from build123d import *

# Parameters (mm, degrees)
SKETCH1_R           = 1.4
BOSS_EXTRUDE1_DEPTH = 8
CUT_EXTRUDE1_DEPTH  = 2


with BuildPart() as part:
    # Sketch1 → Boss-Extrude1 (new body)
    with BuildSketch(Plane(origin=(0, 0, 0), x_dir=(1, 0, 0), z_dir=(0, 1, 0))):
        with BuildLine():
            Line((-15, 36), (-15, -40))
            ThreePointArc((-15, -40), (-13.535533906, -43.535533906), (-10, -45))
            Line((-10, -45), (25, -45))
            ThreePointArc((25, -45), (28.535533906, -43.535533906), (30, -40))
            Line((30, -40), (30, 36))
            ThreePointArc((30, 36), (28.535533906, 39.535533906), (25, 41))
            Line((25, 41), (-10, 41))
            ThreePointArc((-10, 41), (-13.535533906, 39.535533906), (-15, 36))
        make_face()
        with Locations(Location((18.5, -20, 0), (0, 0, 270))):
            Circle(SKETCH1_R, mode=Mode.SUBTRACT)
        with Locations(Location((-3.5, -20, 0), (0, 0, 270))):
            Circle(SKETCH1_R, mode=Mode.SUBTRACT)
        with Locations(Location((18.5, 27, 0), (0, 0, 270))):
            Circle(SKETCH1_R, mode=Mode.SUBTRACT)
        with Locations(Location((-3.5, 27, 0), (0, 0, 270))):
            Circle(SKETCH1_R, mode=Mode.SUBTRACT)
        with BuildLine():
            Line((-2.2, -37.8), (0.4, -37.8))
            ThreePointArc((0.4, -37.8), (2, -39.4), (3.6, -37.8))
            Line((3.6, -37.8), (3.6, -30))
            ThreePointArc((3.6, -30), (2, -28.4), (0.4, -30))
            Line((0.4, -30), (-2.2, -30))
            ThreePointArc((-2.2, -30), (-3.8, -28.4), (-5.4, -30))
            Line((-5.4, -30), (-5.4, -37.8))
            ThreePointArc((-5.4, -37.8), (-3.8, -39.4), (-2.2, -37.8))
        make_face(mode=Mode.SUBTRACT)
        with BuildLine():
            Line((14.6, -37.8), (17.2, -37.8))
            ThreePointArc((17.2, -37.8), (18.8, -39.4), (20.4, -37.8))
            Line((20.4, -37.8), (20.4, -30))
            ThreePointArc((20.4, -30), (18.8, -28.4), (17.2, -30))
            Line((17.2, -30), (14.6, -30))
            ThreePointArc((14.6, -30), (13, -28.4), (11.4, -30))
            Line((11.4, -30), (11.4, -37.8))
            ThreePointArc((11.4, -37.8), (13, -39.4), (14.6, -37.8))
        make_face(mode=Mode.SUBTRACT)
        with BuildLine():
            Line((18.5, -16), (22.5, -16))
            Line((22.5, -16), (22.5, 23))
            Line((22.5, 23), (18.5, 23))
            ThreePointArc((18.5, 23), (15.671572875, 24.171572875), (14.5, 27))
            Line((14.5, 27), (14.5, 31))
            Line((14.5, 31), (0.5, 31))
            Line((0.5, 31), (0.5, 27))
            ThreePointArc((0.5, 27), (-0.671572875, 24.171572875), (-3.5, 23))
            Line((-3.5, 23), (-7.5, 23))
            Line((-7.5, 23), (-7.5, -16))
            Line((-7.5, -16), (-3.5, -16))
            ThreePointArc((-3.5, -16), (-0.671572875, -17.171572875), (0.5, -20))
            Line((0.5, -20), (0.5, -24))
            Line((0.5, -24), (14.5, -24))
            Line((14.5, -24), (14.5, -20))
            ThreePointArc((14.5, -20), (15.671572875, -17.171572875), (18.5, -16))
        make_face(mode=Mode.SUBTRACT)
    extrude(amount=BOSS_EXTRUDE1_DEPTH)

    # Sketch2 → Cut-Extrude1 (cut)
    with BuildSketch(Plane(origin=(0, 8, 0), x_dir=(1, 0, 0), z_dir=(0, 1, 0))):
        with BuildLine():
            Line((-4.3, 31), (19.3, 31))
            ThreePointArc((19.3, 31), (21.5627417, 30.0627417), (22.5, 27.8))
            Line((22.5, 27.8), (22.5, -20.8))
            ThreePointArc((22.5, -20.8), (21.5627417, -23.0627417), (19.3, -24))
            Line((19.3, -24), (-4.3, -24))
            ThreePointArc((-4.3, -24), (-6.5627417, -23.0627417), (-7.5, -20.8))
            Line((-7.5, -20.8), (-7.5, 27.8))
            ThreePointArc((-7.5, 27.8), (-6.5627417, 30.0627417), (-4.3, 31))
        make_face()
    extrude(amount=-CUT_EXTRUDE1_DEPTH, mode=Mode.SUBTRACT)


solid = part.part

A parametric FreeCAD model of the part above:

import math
import FreeCAD as App
import Part
import Sketcher
from FreeCAD import Vector

doc = App.newDocument("Part")
body = doc.addObject("PartDesign::Body", "Body")

# Sketch on XZ plane
sketch1 = body.newObject("Sketcher::SketchObject", "Sketch")
sketch1.AttachmentSupport = (doc.getObject("XZ_Plane"), [""])
sketch1.MapMode = "FlatFace"
sketch1.addGeometry(Part.LineSegment(Vector(-15, -36, 0), Vector(-15, 40, 0)), False)
sketch1.addGeometry(Part.ArcOfCircle(Part.Circle(Vector(-10, 40, 0), Vector(0, 0, 1), 5), math.radians(90), math.radians(180)), False)
sketch1.addGeometry(Part.LineSegment(Vector(-10, 45, 0), Vector(25, 45, 0)), False)
sketch1.addGeometry(Part.ArcOfCircle(Part.Circle(Vector(25, 40, 0), Vector(0, 0, 1), 5), math.radians(0), math.radians(90)), False)
sketch1.addGeometry(Part.LineSegment(Vector(30, 40, 0), Vector(30, -36, 0)), False)
sketch1.addGeometry(Part.ArcOfCircle(Part.Circle(Vector(25, -36, 0), Vector(0, 0, 1), 5), math.radians(-90), math.radians(0)), False)
sketch1.addGeometry(Part.LineSegment(Vector(25, -41, 0), Vector(-10, -41, 0)), False)
sketch1.addGeometry(Part.ArcOfCircle(Part.Circle(Vector(-10, -36, 0), Vector(0, 0, 1), 5), math.radians(180), math.radians(270)), False)
sketch1.addGeometry(Part.LineSegment(Vector(0.4, 37.8, 0), Vector(-2.2, 37.8, 0)), False)
sketch1.addGeometry(Part.ArcOfCircle(Part.Circle(Vector(-3.8, 37.8, 0), Vector(0, 0, 1), 1.6), math.radians(0), math.radians(180)), False)
sketch1.addGeometry(Part.LineSegment(Vector(-5.4, 37.8, 0), Vector(-5.4, 30, 0)), False)
sketch1.addGeometry(Part.ArcOfCircle(Part.Circle(Vector(-3.8, 30, 0), Vector(0, 0, 1), 1.6), math.radians(180), math.radians(360)), False)
sketch1.addGeometry(Part.LineSegment(Vector(-2.2, 30, 0), Vector(0.4, 30, 0)), False)
sketch1.addGeometry(Part.ArcOfCircle(Part.Circle(Vector(2, 30, 0), Vector(0, 0, 1), 1.6), math.radians(180), math.radians(360)), False)
sketch1.addGeometry(Part.LineSegment(Vector(3.6, 30, 0), Vector(3.6, 37.8, 0)), False)
sketch1.addGeometry(Part.ArcOfCircle(Part.Circle(Vector(2, 37.8, 0), Vector(0, 0, 1), 1.6), math.radians(0), math.radians(180)), False)
sketch1.addGeometry(Part.Circle(Vector(-3.5, 20, 0), Vector(0, 0, 1), 1.4), False)
sketch1.addGeometry(Part.LineSegment(Vector(17.2, 37.8, 0), Vector(14.6, 37.8, 0)), False)
sketch1.addGeometry(Part.ArcOfCircle(Part.Circle(Vector(13, 37.8, 0), Vector(0, 0, 1), 1.6), math.radians(0), math.radians(180)), False)
sketch1.addGeometry(Part.LineSegment(Vector(11.4, 37.8, 0), Vector(11.4, 30, 0)), False)
sketch1.addGeometry(Part.ArcOfCircle(Part.Circle(Vector(13, 30, 0), Vector(0, 0, 1), 1.6), math.radians(180), math.radians(360)), False)
sketch1.addGeometry(Part.LineSegment(Vector(14.6, 30, 0), Vector(17.2, 30, 0)), False)
sketch1.addGeometry(Part.ArcOfCircle(Part.Circle(Vector(18.8, 30, 0), Vector(0, 0, 1), 1.6), math.radians(180), math.radians(360)), False)
sketch1.addGeometry(Part.LineSegment(Vector(20.4, 30, 0), Vector(20.4, 37.8, 0)), False)
sketch1.addGeometry(Part.ArcOfCircle(Part.Circle(Vector(18.8, 37.8, 0), Vector(0, 0, 1), 1.6), math.radians(0), math.radians(180)), False)
sketch1.addGeometry(Part.Circle(Vector(18.5, 20, 0), Vector(0, 0, 1), 1.4), False)
sketch1.addGeometry(Part.Circle(Vector(-3.5, -27, 0), Vector(0, 0, 1), 1.4), False)
sketch1.addGeometry(Part.LineSegment(Vector(22.5, 16, 0), Vector(18.5, 16, 0)), False)
sketch1.addGeometry(Part.ArcOfCircle(Part.Circle(Vector(18.5, 20, 0), Vector(0, 0, 1), 4), math.radians(180), math.radians(270)), False)
sketch1.addGeometry(Part.LineSegment(Vector(14.5, 20, 0), Vector(14.5, 24, 0)), False)
sketch1.addGeometry(Part.LineSegment(Vector(14.5, 24, 0), Vector(0.5, 24, 0)), False)
sketch1.addGeometry(Part.LineSegment(Vector(0.5, 24, 0), Vector(0.5, 20, 0)), False)
sketch1.addGeometry(Part.ArcOfCircle(Part.Circle(Vector(-3.5, 20, 0), Vector(0, 0, 1), 4), math.radians(-90), math.radians(0)), False)
sketch1.addGeometry(Part.LineSegment(Vector(-3.5, 16, 0), Vector(-7.5, 16, 0)), False)
sketch1.addGeometry(Part.LineSegment(Vector(-7.5, 16, 0), Vector(-7.5, -23, 0)), False)
sketch1.addGeometry(Part.LineSegment(Vector(-7.5, -23, 0), Vector(-3.5, -23, 0)), False)
sketch1.addGeometry(Part.ArcOfCircle(Part.Circle(Vector(-3.5, -27, 0), Vector(0, 0, 1), 4), math.radians(0), math.radians(90)), False)
sketch1.addGeometry(Part.LineSegment(Vector(0.5, -27, 0), Vector(0.5, -31, 0)), False)
sketch1.addGeometry(Part.LineSegment(Vector(0.5, -31, 0), Vector(14.5, -31, 0)), False)
sketch1.addGeometry(Part.LineSegment(Vector(14.5, -31, 0), Vector(14.5, -27, 0)), False)
sketch1.addGeometry(Part.ArcOfCircle(Part.Circle(Vector(18.5, -27, 0), Vector(0, 0, 1), 4), math.radians(90), math.radians(180)), False)
sketch1.addGeometry(Part.LineSegment(Vector(18.5, -23, 0), Vector(22.5, -23, 0)), False)
sketch1.addGeometry(Part.LineSegment(Vector(22.5, -23, 0), Vector(22.5, 16, 0)), False)
sketch1.addGeometry(Part.Circle(Vector(18.5, -27, 0), Vector(0, 0, 1), 1.4), False)
sketch1.addConstraint(Sketcher.Constraint("Tangent", 0, 2, 1, 2))
sketch1.addConstraint(Sketcher.Constraint("Tangent", 1, 1, 2, 1))
sketch1.addConstraint(Sketcher.Constraint("Tangent", 2, 2, 3, 2))
sketch1.addConstraint(Sketcher.Constraint("Tangent", 3, 1, 4, 1))
sketch1.addConstraint(Sketcher.Constraint("Tangent", 4, 2, 5, 2))
sketch1.addConstraint(Sketcher.Constraint("Tangent", 5, 1, 6, 1))
sketch1.addConstraint(Sketcher.Constraint("Tangent", 6, 2, 7, 2))
sketch1.addConstraint(Sketcher.Constraint("Tangent", 7, 1, 0, 1))
sketch1.addConstraint(Sketcher.Constraint("Coincident", 8, 2, 9, 1))
sketch1.addConstraint(Sketcher.Constraint("Tangent", 9, 2, 10, 1))
sketch1.addConstraint(Sketcher.Constraint("Tangent", 10, 2, 11, 1))
sketch1.addConstraint(Sketcher.Constraint("Coincident", 11, 2, 12, 1))
sketch1.addConstraint(Sketcher.Constraint("Coincident", 12, 2, 13, 1))
sketch1.addConstraint(Sketcher.Constraint("Tangent", 13, 2, 14, 1))
sketch1.addConstraint(Sketcher.Constraint("Tangent", 14, 2, 15, 1))
sketch1.addConstraint(Sketcher.Constraint("Coincident", 15, 2, 8, 1))
sketch1.addConstraint(Sketcher.Constraint("Coincident", 17, 2, 18, 1))
sketch1.addConstraint(Sketcher.Constraint("Tangent", 18, 2, 19, 1))
sketch1.addConstraint(Sketcher.Constraint("Tangent", 19, 2, 20, 1))
sketch1.addConstraint(Sketcher.Constraint("Coincident", 20, 2, 21, 1))
sketch1.addConstraint(Sketcher.Constraint("Coincident", 21, 2, 22, 1))
sketch1.addConstraint(Sketcher.Constraint("Tangent", 22, 2, 23, 1))
sketch1.addConstraint(Sketcher.Constraint("Tangent", 23, 2, 24, 1))
sketch1.addConstraint(Sketcher.Constraint("Coincident", 24, 2, 17, 1))
sketch1.addConstraint(Sketcher.Constraint("Tangent", 27, 2, 28, 2))
sketch1.addConstraint(Sketcher.Constraint("Tangent", 28, 1, 29, 1))
sketch1.addConstraint(Sketcher.Constraint("Coincident", 29, 2, 30, 1))
sketch1.addConstraint(Sketcher.Constraint("Coincident", 30, 2, 31, 1))
sketch1.addConstraint(Sketcher.Constraint("Tangent", 31, 2, 32, 2))
sketch1.addConstraint(Sketcher.Constraint("Tangent", 32, 1, 33, 1))
sketch1.addConstraint(Sketcher.Constraint("Coincident", 33, 2, 34, 1))
sketch1.addConstraint(Sketcher.Constraint("Coincident", 34, 2, 35, 1))
sketch1.addConstraint(Sketcher.Constraint("Tangent", 35, 2, 36, 2))
sketch1.addConstraint(Sketcher.Constraint("Tangent", 36, 1, 37, 1))
sketch1.addConstraint(Sketcher.Constraint("Coincident", 37, 2, 38, 1))
sketch1.addConstraint(Sketcher.Constraint("Coincident", 38, 2, 39, 1))
sketch1.addConstraint(Sketcher.Constraint("Tangent", 39, 2, 40, 2))
sketch1.addConstraint(Sketcher.Constraint("Tangent", 40, 1, 41, 1))
sketch1.addConstraint(Sketcher.Constraint("Coincident", 41, 2, 42, 1))
sketch1.addConstraint(Sketcher.Constraint("Coincident", 42, 2, 27, 1))
sketch1.addConstraint(Sketcher.Constraint("Vertical", 0))
sketch1.addConstraint(Sketcher.Constraint("Horizontal", 2))
sketch1.addConstraint(Sketcher.Constraint("Vertical", 4))
sketch1.addConstraint(Sketcher.Constraint("Horizontal", 6))
sketch1.addConstraint(Sketcher.Constraint("Horizontal", 8))
sketch1.addConstraint(Sketcher.Constraint("Vertical", 10))
sketch1.addConstraint(Sketcher.Constraint("Horizontal", 12))
sketch1.addConstraint(Sketcher.Constraint("Vertical", 14))
sketch1.addConstraint(Sketcher.Constraint("Horizontal", 17))
sketch1.addConstraint(Sketcher.Constraint("Vertical", 19))
sketch1.addConstraint(Sketcher.Constraint("Horizontal", 21))
sketch1.addConstraint(Sketcher.Constraint("Vertical", 23))
sketch1.addConstraint(Sketcher.Constraint("Horizontal", 27))
sketch1.addConstraint(Sketcher.Constraint("Vertical", 29))
sketch1.addConstraint(Sketcher.Constraint("Horizontal", 30))
sketch1.addConstraint(Sketcher.Constraint("Vertical", 31))
sketch1.addConstraint(Sketcher.Constraint("Horizontal", 33))
sketch1.addConstraint(Sketcher.Constraint("Vertical", 34))
sketch1.addConstraint(Sketcher.Constraint("Horizontal", 35))
sketch1.addConstraint(Sketcher.Constraint("Vertical", 37))
sketch1.addConstraint(Sketcher.Constraint("Horizontal", 38))
sketch1.addConstraint(Sketcher.Constraint("Vertical", 39))
sketch1.addConstraint(Sketcher.Constraint("Horizontal", 41))
sketch1.addConstraint(Sketcher.Constraint("Vertical", 42))
sketch1.addConstraint(Sketcher.Constraint("Coincident", 28, 3, 25, 3))
sketch1.addConstraint(Sketcher.Constraint("Coincident", 32, 3, 16, 3))
sketch1.addConstraint(Sketcher.Constraint("Coincident", 36, 3, 26, 3))
sketch1.addConstraint(Sketcher.Constraint("Coincident", 43, 3, 40, 3))
sketch1.addConstraint(Sketcher.Constraint("Equal", 1, 3))
sketch1.addConstraint(Sketcher.Constraint("Equal", 3, 5))
sketch1.addConstraint(Sketcher.Constraint("Equal", 5, 7))
sketch1.addConstraint(Sketcher.Constraint("Equal", 9, 11))
sketch1.addConstraint(Sketcher.Constraint("Equal", 11, 13))
sketch1.addConstraint(Sketcher.Constraint("Equal", 13, 15))
sketch1.addConstraint(Sketcher.Constraint("Equal", 15, 18))
sketch1.addConstraint(Sketcher.Constraint("Equal", 18, 20))
sketch1.addConstraint(Sketcher.Constraint("Equal", 20, 22))
sketch1.addConstraint(Sketcher.Constraint("Equal", 22, 24))
sketch1.addConstraint(Sketcher.Constraint("Equal", 16, 25))
sketch1.addConstraint(Sketcher.Constraint("Equal", 25, 26))
sketch1.addConstraint(Sketcher.Constraint("Equal", 28, 32))
sketch1.addConstraint(Sketcher.Constraint("Equal", 32, 36))
sketch1.addConstraint(Sketcher.Constraint("Equal", 36, 40))
sketch1.addConstraint(Sketcher.Constraint("Equal", 26, 43))
sketch1.addConstraint(Sketcher.Constraint("Horizontal", 11, 3, 13, 3))
sketch1.addConstraint(Sketcher.Constraint("Horizontal", 9, 3, 15, 3))
sketch1.addConstraint(Sketcher.Constraint("Horizontal", 15, 3, 18, 3))
sketch1.addConstraint(Sketcher.Constraint("Horizontal", 13, 3, 20, 3))
sketch1.addConstraint(Sketcher.Constraint("Horizontal", 20, 3, 22, 3))
sketch1.addConstraint(Sketcher.Constraint("Horizontal", 18, 3, 24, 3))
sketch1.addConstraint(Sketcher.Constraint("Horizontal", 16, 3, 25, 3))
sketch1.addConstraint(Sketcher.Constraint("Horizontal", 36, 3, 40, 3))
sketch1.addConstraint(Sketcher.Constraint("Horizontal", 24, 3, 8, 2))
sketch1.addConstraint(Sketcher.Constraint("Horizontal", 10, 2, 11, 2))
sketch1.addConstraint(Sketcher.Constraint("Horizontal", 15, 2, 17, 2))
sketch1.addConstraint(Sketcher.Constraint("Horizontal", 19, 2, 20, 2))
sketch1.addConstraint(Sketcher.Constraint("Vertical", 16, 3, 26, 3))
sketch1.addConstraint(Sketcher.Constraint("Vertical", 28, 3, 40, 3))
sketch1.addConstraint(Sketcher.Constraint("Equal", 12, 17))
sketch1.addConstraint(Sketcher.Constraint("Equal", 27, 33))
sketch1.addConstraint(Sketcher.Constraint("Equal", 41, 29))
sketch1.addConstraint(Sketcher.Constraint("Equal", 31, 37))
sketch1.addConstraint(Sketcher.Constraint("Radius", 1, 5.0))
sketch1.addConstraint(Sketcher.Constraint("Radius", 28, 4.0))
sketch1.addConstraint(Sketcher.Constraint("Diameter", 16, 2.8))
sketch1.addConstraint(Sketcher.Constraint("Radius", 9, 1.6))
sketch1.addConstraint(Sketcher.Constraint("DistanceX", 2, 1, 2, 2, 35.0))
sketch1.addConstraint(Sketcher.Constraint("DistanceX", 27, 2, 27, 1, 4.0))
sketch1.addConstraint(Sketcher.Constraint("DistanceX", 30, 2, 30, 1, 14.0))
sketch1.addConstraint(Sketcher.Constraint("DistanceY", 0, 1, 0, 2, 76.0))
sketch1.addConstraint(Sketcher.Constraint("DistanceY", 34, 2, 34, 1, 39.0))
sketch1.addConstraint(Sketcher.Constraint("DistanceX", 8, 2, 8, 1, 2.6))
sketch1.addConstraint(Sketcher.Constraint("DistanceY", 10, 2, 10, 1, 7.8))
sketch1.addConstraint(Sketcher.Constraint("DistanceX", 1, 3, -1, 1, 10.0))
sketch1.addConstraint(Sketcher.Constraint("DistanceY", -1, 1, 1, 3, 40.0))
sketch1.addConstraint(Sketcher.Constraint("DistanceY", -1, 1, 11, 3, 30.0))
sketch1.addConstraint(Sketcher.Constraint("DistanceX", -1, 1, 13, 3, 2.0))
sketch1.addConstraint(Sketcher.Constraint("DistanceY", -1, 1, 16, 3, 20.0))
sketch1.addConstraint(Sketcher.Constraint("DistanceX", -1, 1, 18, 3, 13.0))
sketch1.addConstraint(Sketcher.Constraint("DistanceX", 16, 3, -1, 1, 3.5))
pad1 = body.newObject("PartDesign::Pad", "Pad")
pad1.Profile = sketch1
pad1.Length = 8
pad1.Reversed = True

# Sketch on XZ plane
sketch2 = body.newObject("Sketcher::SketchObject", "Sketch001")
sketch2.AttachmentSupport = (doc.getObject("XZ_Plane"), [""])
sketch2.MapMode = "FlatFace"
sketch2.AttachmentOffset = App.Placement(Vector(0, 0, -8), App.Rotation())
sketch2.addGeometry(Part.LineSegment(Vector(19.3, -31, 0), Vector(-4.3, -31, 0)), False)
sketch2.addGeometry(Part.ArcOfCircle(Part.Circle(Vector(-4.3, -27.8, 0), Vector(0, 0, 1), 3.2), math.radians(180), math.radians(270)), False)
sketch2.addGeometry(Part.LineSegment(Vector(-7.5, -27.8, 0), Vector(-7.5, 20.8, 0)), False)
sketch2.addGeometry(Part.ArcOfCircle(Part.Circle(Vector(-4.3, 20.8, 0), Vector(0, 0, 1), 3.2), math.radians(90), math.radians(180)), False)
sketch2.addGeometry(Part.LineSegment(Vector(-4.3, 24, 0), Vector(19.3, 24, 0)), False)
sketch2.addGeometry(Part.ArcOfCircle(Part.Circle(Vector(19.3, 20.8, 0), Vector(0, 0, 1), 3.2), math.radians(0), math.radians(90)), False)
sketch2.addGeometry(Part.LineSegment(Vector(22.5, 20.8, 0), Vector(22.5, -27.8, 0)), False)
sketch2.addGeometry(Part.ArcOfCircle(Part.Circle(Vector(19.3, -27.8, 0), Vector(0, 0, 1), 3.2), math.radians(-90), math.radians(0)), False)
sketch2.addConstraint(Sketcher.Constraint("Tangent", 0, 2, 1, 2))
sketch2.addConstraint(Sketcher.Constraint("Tangent", 1, 1, 2, 1))
sketch2.addConstraint(Sketcher.Constraint("Tangent", 2, 2, 3, 2))
sketch2.addConstraint(Sketcher.Constraint("Tangent", 3, 1, 4, 1))
sketch2.addConstraint(Sketcher.Constraint("Tangent", 4, 2, 5, 2))
sketch2.addConstraint(Sketcher.Constraint("Tangent", 5, 1, 6, 1))
sketch2.addConstraint(Sketcher.Constraint("Tangent", 6, 2, 7, 2))
sketch2.addConstraint(Sketcher.Constraint("Tangent", 7, 1, 0, 1))
sketch2.addConstraint(Sketcher.Constraint("Horizontal", 0))
sketch2.addConstraint(Sketcher.Constraint("Vertical", 2))
sketch2.addConstraint(Sketcher.Constraint("Horizontal", 4))
sketch2.addConstraint(Sketcher.Constraint("Vertical", 6))
sketch2.addConstraint(Sketcher.Constraint("Equal", 1, 3))
sketch2.addConstraint(Sketcher.Constraint("Equal", 3, 5))
sketch2.addConstraint(Sketcher.Constraint("Equal", 5, 7))
sketch2.addConstraint(Sketcher.Constraint("Radius", 1, 3.2))
sketch2.addConstraint(Sketcher.Constraint("DistanceX", 0, 2, 0, 1, 23.6))
sketch2.addConstraint(Sketcher.Constraint("DistanceY", 2, 1, 2, 2, 48.6))
sketch2.addConstraint(Sketcher.Constraint("DistanceY", 0, 2, -1, 1, 31.0))
sketch2.addConstraint(Sketcher.Constraint("DistanceX", 1, 3, -1, 1, 4.3))
pocket1 = body.newObject("PartDesign::Pocket", "Pocket")
pocket1.Profile = sketch2
pocket1.Length = 2
pocket1.Reversed = True

doc.recompute()
